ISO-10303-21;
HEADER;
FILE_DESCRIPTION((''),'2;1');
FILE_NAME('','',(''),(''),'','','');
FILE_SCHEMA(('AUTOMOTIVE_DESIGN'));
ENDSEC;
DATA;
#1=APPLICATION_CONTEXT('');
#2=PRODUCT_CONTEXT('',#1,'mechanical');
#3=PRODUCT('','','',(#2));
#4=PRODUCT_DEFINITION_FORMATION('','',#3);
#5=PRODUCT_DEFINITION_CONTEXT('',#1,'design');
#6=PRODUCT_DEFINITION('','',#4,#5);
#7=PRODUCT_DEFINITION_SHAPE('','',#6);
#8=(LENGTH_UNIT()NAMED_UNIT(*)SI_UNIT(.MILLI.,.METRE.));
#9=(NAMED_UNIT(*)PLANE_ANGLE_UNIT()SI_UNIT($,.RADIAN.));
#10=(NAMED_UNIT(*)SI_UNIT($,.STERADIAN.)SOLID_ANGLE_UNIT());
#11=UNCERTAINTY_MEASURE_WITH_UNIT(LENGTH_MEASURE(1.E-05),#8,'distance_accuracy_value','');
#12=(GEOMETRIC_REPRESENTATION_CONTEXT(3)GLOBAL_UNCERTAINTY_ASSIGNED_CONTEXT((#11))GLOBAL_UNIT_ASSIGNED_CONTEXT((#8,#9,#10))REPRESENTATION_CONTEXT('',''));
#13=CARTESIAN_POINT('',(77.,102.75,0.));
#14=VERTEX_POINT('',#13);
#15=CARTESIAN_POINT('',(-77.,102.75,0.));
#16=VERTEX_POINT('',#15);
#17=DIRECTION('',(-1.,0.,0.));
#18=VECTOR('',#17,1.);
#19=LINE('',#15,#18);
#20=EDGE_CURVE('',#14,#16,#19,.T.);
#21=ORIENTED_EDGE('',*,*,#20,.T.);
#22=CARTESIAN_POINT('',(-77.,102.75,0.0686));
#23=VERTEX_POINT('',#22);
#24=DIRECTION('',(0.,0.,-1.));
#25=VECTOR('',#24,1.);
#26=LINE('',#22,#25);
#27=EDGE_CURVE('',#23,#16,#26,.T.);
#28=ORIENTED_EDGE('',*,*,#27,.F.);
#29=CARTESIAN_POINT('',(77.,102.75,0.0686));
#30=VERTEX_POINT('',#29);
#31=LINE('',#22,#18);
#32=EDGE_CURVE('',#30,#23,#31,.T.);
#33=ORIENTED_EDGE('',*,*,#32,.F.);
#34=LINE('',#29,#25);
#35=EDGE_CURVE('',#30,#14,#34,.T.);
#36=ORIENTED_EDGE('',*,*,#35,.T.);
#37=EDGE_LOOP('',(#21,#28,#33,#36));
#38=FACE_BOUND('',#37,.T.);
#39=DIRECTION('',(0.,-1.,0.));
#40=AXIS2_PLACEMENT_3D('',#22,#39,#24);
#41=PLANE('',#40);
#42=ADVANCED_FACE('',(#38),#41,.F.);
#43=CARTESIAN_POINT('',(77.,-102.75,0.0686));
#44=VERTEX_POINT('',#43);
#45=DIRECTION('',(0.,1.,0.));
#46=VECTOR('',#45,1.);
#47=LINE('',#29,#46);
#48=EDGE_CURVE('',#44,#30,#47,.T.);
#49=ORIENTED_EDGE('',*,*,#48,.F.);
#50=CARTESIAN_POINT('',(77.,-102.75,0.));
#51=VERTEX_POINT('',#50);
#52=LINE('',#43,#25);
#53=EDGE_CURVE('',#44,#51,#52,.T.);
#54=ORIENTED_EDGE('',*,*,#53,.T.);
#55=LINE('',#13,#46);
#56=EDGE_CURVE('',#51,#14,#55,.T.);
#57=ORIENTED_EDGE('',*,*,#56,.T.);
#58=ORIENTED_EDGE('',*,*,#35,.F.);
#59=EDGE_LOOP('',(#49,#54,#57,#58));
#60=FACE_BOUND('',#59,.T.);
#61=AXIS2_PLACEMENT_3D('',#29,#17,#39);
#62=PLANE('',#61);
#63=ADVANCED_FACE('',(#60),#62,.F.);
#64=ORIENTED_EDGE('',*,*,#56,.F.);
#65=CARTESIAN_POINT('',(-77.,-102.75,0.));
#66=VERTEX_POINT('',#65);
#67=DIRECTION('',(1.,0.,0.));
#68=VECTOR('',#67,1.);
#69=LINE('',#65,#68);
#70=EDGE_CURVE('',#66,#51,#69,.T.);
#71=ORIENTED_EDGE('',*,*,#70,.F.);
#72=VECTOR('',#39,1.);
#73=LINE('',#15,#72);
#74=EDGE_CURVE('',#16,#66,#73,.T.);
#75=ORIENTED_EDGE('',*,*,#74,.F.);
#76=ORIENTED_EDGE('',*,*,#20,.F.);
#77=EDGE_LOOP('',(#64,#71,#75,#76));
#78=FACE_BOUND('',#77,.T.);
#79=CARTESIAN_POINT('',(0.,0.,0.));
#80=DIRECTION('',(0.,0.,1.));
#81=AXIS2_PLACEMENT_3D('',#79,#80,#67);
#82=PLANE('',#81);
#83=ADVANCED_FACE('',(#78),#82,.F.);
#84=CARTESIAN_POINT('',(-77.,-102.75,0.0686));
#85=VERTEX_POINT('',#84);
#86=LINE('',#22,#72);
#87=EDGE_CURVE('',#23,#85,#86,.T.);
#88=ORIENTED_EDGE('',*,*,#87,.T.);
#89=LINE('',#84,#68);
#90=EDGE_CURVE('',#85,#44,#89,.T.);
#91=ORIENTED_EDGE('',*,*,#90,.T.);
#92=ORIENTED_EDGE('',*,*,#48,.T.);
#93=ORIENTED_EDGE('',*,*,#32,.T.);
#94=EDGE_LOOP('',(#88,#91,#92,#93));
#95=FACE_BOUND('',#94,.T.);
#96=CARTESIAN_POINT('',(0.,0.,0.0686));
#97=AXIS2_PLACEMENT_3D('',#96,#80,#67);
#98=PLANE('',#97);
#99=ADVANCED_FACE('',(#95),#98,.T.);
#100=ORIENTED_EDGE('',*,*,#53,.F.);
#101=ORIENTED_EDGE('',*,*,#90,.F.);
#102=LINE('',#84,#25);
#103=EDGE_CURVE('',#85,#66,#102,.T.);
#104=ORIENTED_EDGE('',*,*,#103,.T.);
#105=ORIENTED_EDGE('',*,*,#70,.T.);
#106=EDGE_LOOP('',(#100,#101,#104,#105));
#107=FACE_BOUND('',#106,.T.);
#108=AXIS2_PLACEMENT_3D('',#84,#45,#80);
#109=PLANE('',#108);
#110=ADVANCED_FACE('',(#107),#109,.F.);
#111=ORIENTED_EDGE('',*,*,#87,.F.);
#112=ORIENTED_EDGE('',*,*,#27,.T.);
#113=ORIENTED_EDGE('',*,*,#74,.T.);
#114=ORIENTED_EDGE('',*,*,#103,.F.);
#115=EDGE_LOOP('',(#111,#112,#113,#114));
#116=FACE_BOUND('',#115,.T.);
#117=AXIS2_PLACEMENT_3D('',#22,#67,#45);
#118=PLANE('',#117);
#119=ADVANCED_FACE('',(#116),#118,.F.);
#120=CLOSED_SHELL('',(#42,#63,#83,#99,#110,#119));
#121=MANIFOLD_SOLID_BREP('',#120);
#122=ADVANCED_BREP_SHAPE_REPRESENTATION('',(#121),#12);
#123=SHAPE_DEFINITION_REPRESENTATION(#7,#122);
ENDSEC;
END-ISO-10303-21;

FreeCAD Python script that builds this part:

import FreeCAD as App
import Part
import Sketcher

doc = App.newDocument("Part")
body = doc.addObject("PartDesign::Body", "Body")

sketch1 = body.newObject("Sketcher::SketchObject", "Sketch")
sketch1.AttachmentSupport = (doc.getObject("XY_Plane"), [""])
sketch1.MapMode = "FlatFace"
sketch1.addGeometry([
    Part.LineSegment(App.Vector(-77, 103, 0), App.Vector(-77, -103, 0)),
    Part.LineSegment(App.Vector(-77, -103, 0), App.Vector(77, -103, 0)),
    Part.LineSegment(App.Vector(77, -103, 0), App.Vector(77, 103, 0)),
    Part.LineSegment(App.Vector(77, 103, 0), App.Vector(-77, 103, 0)),
], False)
sketch1.addConstraint([
    Sketcher.Constraint("Coincident", 0, 2, 1, 1),
    Sketcher.Constraint("Coincident", 1, 2, 2, 1),
    Sketcher.Constraint("Coincident", 2, 2, 3, 1),
    Sketcher.Constraint("Coincident", 3, 2, 0, 1),
    Sketcher.Constraint("Vertical", 0),
    Sketcher.Constraint("Horizontal", 1),
    Sketcher.Constraint("Vertical", 2),
    Sketcher.Constraint("Horizontal", 3),
    Sketcher.Constraint("Symmetric", 0, 2, 2, 2, -1, 1),
    Sketcher.Constraint("DistanceX", 1, 1, 1, 2, 154.0),
    Sketcher.Constraint("DistanceY", 0, 2, 0, 1, 205.5),
])
pad1 = body.newObject("PartDesign::Pad", "Pad")
pad1.Profile = sketch1
pad1.Length = 0.0686

doc.recompute()
